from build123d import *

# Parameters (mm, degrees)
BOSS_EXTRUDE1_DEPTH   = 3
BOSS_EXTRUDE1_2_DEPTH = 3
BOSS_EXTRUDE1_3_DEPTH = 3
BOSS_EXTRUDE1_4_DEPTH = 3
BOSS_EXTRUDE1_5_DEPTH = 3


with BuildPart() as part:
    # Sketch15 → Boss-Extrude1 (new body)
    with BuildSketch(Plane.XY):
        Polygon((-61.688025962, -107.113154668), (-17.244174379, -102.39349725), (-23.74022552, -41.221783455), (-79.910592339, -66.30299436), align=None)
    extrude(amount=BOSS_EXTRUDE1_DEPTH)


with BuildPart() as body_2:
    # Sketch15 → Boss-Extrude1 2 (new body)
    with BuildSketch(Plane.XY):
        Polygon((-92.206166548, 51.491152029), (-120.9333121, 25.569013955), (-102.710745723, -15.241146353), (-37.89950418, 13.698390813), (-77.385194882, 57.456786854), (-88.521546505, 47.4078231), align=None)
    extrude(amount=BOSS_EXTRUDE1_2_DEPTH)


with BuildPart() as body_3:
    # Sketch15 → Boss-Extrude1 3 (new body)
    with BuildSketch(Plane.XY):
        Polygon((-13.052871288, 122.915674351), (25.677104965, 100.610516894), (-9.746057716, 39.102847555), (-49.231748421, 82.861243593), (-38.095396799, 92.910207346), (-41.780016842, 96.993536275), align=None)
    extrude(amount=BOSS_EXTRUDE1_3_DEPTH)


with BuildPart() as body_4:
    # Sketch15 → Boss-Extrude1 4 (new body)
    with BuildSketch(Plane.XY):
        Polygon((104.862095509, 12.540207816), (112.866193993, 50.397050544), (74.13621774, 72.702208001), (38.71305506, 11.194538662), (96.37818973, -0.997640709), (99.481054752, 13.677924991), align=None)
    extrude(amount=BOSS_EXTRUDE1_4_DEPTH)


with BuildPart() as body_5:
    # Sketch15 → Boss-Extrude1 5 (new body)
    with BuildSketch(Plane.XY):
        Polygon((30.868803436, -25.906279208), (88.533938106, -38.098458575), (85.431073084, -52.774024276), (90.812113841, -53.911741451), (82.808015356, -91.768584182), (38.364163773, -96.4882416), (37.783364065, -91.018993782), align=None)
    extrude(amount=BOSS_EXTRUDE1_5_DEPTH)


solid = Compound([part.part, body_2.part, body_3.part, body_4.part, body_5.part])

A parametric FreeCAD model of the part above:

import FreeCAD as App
import Part
import Sketcher

V = App.Vector

doc = App.newDocument("Part")
body = doc.addObject("PartDesign::Body", "Body")

sketch1 = body.newObject("Sketcher::SketchObject", "Sketch")
sketch1.AttachmentSupport = (doc.getObject("XY_Plane"), [""])
sketch1.MapMode = "FlatFace"
sketch1.addGeometry([
    Part.LineSegment(V(-62, -107, 0), V(-17, -102, 0)),
    Part.LineSegment(V(-17, -102, 0), V(-24, -41, 0)),
    Part.LineSegment(V(-24, -41, 0), V(-80, -66, 0)),
    Part.LineSegment(V(-80, -66, 0), V(-62, -107, 0)),
], False)
sketch1.addConstraint([
    Sketcher.Constraint("Coincident", 0, 2, 1, 1),
    Sketcher.Constraint("Coincident", 1, 2, 2, 1),
    Sketcher.Constraint("Coincident", 2, 2, 3, 1),
    Sketcher.Constraint("Coincident", 3, 2, 0, 1),
    Sketcher.Constraint("Perpendicular", 0, 1),
    Sketcher.Constraint("Perpendicular", 2, 3),
    Sketcher.Constraint("Equal", 1, 2),
    Sketcher.Constraint("DistanceX", 3, 2, 1, 2, 37.9478),
    Sketcher.Constraint("DistanceX", 1, 2, 0, 2, 6.496051),
    Sketcher.Constraint("DistanceY", 2, 2, 1, 2, 25.081211),
    Sketcher.Constraint("DistanceX", 0, 2, -1, 1, 17.244174),
    Sketcher.Constraint("DistanceY", 0, 2, -1, 1, 102.393497),
])
pad1 = body.newObject("PartDesign::Pad", "Pad")
pad1.Profile = sketch1
pad1.Length = 3
body2 = doc.addObject("PartDesign::Body", "Body001")

sketch2 = body2.newObject("Sketcher::SketchObject", "Sketch001")
sketch2.AttachmentSupport = (doc.getObject("XY_Plane001"), [""])
sketch2.MapMode = "FlatFace"
sketch2.addGeometry([
    Part.LineSegment(V(-92, 51, 0), V(-121, 26, 0)),
    Part.LineSegment(V(-121, 26, 0), V(-103, -15, 0)),
    Part.LineSegment(V(-103, -15, 0), V(-38, 14, 0)),
    Part.LineSegment(V(-38, 14, 0), V(-77, 57, 0)),
    Part.LineSegment(V(-77, 57, 0), V(-89, 47, 0)),
    Part.LineSegment(V(-89, 47, 0), V(-92, 51, 0)),
], False)
sketch2.addConstraint([
    Sketcher.Constraint("Coincident", 0, 2, 1, 1),
    Sketcher.Constraint("Coincident", 1, 2, 2, 1),
    Sketcher.Constraint("Coincident", 2, 2, 3, 1),
    Sketcher.Constraint("Coincident", 3, 2, 4, 1),
    Sketcher.Constraint("Coincident", 4, 2, 5, 1),
    Sketcher.Constraint("Coincident", 5, 2, 0, 1),
    Sketcher.Constraint("Perpendicular", 1, 2),
    Sketcher.Constraint("Perpendicular", 0, 3),
    Sketcher.Constraint("Perpendicular", 3, 4),
    Sketcher.Constraint("Perpendicular", 4, 5),
    Sketcher.Constraint("Distance", 4, 15.0),
    Sketcher.Constraint("Distance", 5, 5.5),
    Sketcher.Constraint("DistanceX", 1, 2, 4, 2, 14.189199),
    Sketcher.Constraint("DistanceY", 1, 2, 5, 2, 66.732298),
    Sketcher.Constraint("DistanceY", -1, 1, 2, 2, 13.698391),
    Sketcher.Constraint("DistanceY", 1, 2, 0, 2, 40.81016),
    Sketcher.Constraint("DistanceX", 1, 2, 2, 2, 64.811242),
    Sketcher.Constraint("DistanceX", 0, 2, -1, 1, 120.933312),
])
pad2 = body2.newObject("PartDesign::Pad", "Pad001")
pad2.Profile = sketch2
pad2.Length = 3
body3 = doc.addObject("PartDesign::Body", "Body002")

sketch3 = body3.newObject("Sketcher::SketchObject", "Sketch002")
sketch3.AttachmentSupport = (doc.getObject("XY_Plane002"), [""])
sketch3.MapMode = "FlatFace"
sketch3.addGeometry([
    Part.LineSegment(V(26, 101, 0), V(-13, 123, 0)),
    Part.LineSegment(V(-13, 123, 0), V(-42, 97, 0)),
    Part.LineSegment(V(-42, 97, 0), V(-38, 93, 0)),
    Part.LineSegment(V(-38, 93, 0), V(-49, 83, 0)),
    Part.LineSegment(V(-49, 83, 0), V(-10, 39, 0)),
    Part.LineSegment(V(-10, 39, 0), V(26, 101, 0)),
], False)
sketch3.addConstraint([
    Sketcher.Constraint("Coincident", 0, 2, 1, 1),
    Sketcher.Constraint("Coincident", 1, 2, 2, 1),
    Sketcher.Constraint("Coincident", 2, 2, 3, 1),
    Sketcher.Constraint("Coincident", 3, 2, 4, 1),
    Sketcher.Constraint("Coincident", 4, 2, 5, 1),
    Sketcher.Constraint("Coincident", 5, 2, 0, 1),
    Sketcher.Constraint("Perpendicular", 1, 2),
    Sketcher.Constraint("Perpendicular", 2, 3),
    Sketcher.Constraint("Perpendicular", 3, 4),
    Sketcher.Constraint("Perpendicular", 0, 5),
    Sketcher.Constraint("Distance", 3, 15.0),
    Sketcher.Constraint("Distance", 2, 5.5),
    Sketcher.Constraint("DistanceX", 2, 2, 5, 2, 63.772502),
    Sketcher.Constraint("DistanceX", 0, 2, -1, 1, 13.052871),
    Sketcher.Constraint("DistanceX", 3, 2, -1, 1, 49.231748),
    Sketcher.Constraint("DistanceY", 1, 2, 0, 2, 25.922138),
    Sketcher.Constraint("DistanceX", 3, 2, 4, 2, 39.485691),
    Sketcher.Constraint("DistanceY", -1, 1, 0, 2, 122.915674),
])
pad3 = body3.newObject("PartDesign::Pad", "Pad002")
pad3.Profile = sketch3
pad3.Length = 3
body4 = doc.addObject("PartDesign::Body", "Body003")

sketch4 = body4.newObject("Sketcher::SketchObject", "Sketch003")
sketch4.AttachmentSupport = (doc.getObject("XY_Plane003"), [""])
sketch4.MapMode = "FlatFace"
sketch4.addGeometry([
    Part.LineSegment(V(105, 13, 0), V(113, 50, 0)),
    Part.LineSegment(V(113, 50, 0), V(74, 73, 0)),
    Part.LineSegment(V(74, 73, 0), V(39, 11, 0)),
    Part.LineSegment(V(39, 11, 0), V(96, -1, 0)),
    Part.LineSegment(V(96, -1, 0), V(99, 14, 0)),
    Part.LineSegment(V(99, 14, 0), V(105, 13, 0)),
], False)
sketch4.addConstraint([
    Sketcher.Constraint("Coincident", 0, 2, 1, 1),
    Sketcher.Constraint("Coincident", 1, 2, 2, 1),
    Sketcher.Constraint("Coincident", 2, 2, 3, 1),
    Sketcher.Constraint("Coincident", 3, 2, 4, 1),
    Sketcher.Constraint("Coincident", 4, 2, 5, 1),
    Sketcher.Constraint("Coincident", 5, 2, 0, 1),
    Sketcher.Constraint("Perpendicular", 1, 2),
    Sketcher.Constraint("Perpendicular", 0, 3),
    Sketcher.Constraint("Perpendicular", 3, 4),
    Sketcher.Constraint("Perpendicular", 4, 5),
    Sketcher.Constraint("Distance", 4, 15.0),
    Sketcher.Constraint("Distance", 5, 5.5),
    Sketcher.Constraint("DistanceX", 2, 2, 4, 2, 60.768),
    Sketcher.Constraint("DistanceY", 5, 2, 1, 2, 60.162),
    Sketcher.Constraint("DistanceX", 5, 2, 0, 2, 8.004098),
    Sketcher.Constraint("DistanceY", -1, 1, 0, 2, 50.397051),
    Sketcher.Constraint("DistanceY", -1, 1, 1, 2, 72.702208),
    Sketcher.Constraint("DistanceX", -1, 1, 3, 2, 96.37819),
])
pad4 = body4.newObject("PartDesign::Pad", "Pad003")
pad4.Profile = sketch4
pad4.Length = 3
body5 = doc.addObject("PartDesign::Body", "Body004")

sketch5 = body5.newObject("Sketcher::SketchObject", "Sketch004")
sketch5.AttachmentSupport = (doc.getObject("XY_Plane004"), [""])
sketch5.MapMode = "FlatFace"
sketch5.addGeometry([
    Part.LineSegment(V(89, -38, 0), V(31, -26, 0)),
    Part.LineSegment(V(31, -26, 0), V(38, -91, 0)),
    Part.LineSegment(V(38, -91, 0), V(38, -96, 0)),
    Part.LineSegment(V(38, -96, 0), V(83, -92, 0)),
    Part.LineSegment(V(83, -92, 0), V(91, -54, 0)),
    Part.LineSegment(V(91, -54, 0), V(85, -53, 0)),
    Part.LineSegment(V(85, -53, 0), V(89, -38, 0)),
], False)
sketch5.addConstraint([
    Sketcher.Constraint("Coincident", 0, 2, 1, 1),
    Sketcher.Constraint("Coincident", 1, 2, 2, 1),
    Sketcher.Constraint("Coincident", 2, 2, 3, 1),
    Sketcher.Constraint("Coincident", 3, 2, 4, 1),
    Sketcher.Constraint("Coincident", 4, 2, 5, 1),
    Sketcher.Constraint("Coincident", 5, 2, 6, 1),
    Sketcher.Constraint("Coincident", 6, 2, 0, 1),
    Sketcher.Constraint("Parallel", 1, 2),
    Sketcher.Constraint("Perpendicular", 2, 3),
    Sketcher.Constraint("Perpendicular", 0, 4),
    Sketcher.Constraint("Perpendicular", 4, 5),
    Sketcher.Constraint("Perpendicular", 5, 6),
    Sketcher.Constraint("Equal", 2, 5),
    Sketcher.Constraint("Distance", 6, 15.0),
    Sketcher.Constraint("Distance", 2, 5.5),
    Sketcher.Constraint("DistanceX", 1, 2, 2, 2, 0.5808),
    Sketcher.Constraint("DistanceX", 3, 2, 4, 2, 8.004098),
    Sketcher.Constraint("DistanceY", 2, 2, 4, 2, 42.5765),
    Sketcher.Constraint("DistanceY", 0, 2, -1, 1, 25.906279),
    Sketcher.Constraint("DistanceY", 2, 2, -1, 1, 96.488242),
    Sketcher.Constraint("DistanceX", -1, 1, 6, 2, 88.533938),
])
pad5 = body5.newObject("PartDesign::Pad", "Pad004")
pad5.Profile = sketch5
pad5.Length = 3

doc.recompute()
